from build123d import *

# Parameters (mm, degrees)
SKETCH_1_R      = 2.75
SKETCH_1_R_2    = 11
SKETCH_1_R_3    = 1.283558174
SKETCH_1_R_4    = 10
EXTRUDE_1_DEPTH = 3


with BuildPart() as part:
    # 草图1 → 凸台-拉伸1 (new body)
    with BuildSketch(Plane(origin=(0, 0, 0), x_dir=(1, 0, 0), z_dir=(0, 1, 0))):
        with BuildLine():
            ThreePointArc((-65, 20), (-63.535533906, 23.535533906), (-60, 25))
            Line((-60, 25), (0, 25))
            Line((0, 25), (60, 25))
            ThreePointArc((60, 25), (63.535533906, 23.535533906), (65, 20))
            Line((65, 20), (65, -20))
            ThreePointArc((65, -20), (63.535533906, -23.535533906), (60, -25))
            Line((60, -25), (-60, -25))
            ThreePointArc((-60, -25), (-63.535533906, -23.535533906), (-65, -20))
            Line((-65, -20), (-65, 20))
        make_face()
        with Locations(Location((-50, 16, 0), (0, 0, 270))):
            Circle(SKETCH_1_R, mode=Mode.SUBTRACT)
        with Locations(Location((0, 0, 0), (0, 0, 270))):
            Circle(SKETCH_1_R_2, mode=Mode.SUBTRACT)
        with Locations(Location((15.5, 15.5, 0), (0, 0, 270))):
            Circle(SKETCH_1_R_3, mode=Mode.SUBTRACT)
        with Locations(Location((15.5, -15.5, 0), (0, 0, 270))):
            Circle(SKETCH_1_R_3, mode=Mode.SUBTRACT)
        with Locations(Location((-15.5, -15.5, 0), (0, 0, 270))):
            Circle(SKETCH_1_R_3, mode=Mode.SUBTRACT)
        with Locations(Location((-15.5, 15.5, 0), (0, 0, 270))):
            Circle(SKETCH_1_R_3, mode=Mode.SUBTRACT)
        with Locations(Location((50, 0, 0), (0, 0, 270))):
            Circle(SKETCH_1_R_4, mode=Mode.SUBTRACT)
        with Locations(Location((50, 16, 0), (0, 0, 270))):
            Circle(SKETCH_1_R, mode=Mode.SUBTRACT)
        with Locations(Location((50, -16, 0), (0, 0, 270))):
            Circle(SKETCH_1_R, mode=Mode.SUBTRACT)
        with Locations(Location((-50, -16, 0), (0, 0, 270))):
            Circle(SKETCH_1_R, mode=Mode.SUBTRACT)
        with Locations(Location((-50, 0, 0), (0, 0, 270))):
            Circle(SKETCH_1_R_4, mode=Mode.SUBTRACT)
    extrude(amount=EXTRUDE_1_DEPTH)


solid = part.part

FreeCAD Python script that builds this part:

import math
import FreeCAD as App
import Part
import Sketcher

doc = App.newDocument("Part")
body = doc.addObject("PartDesign::Body", "Body")

sketch1 = doc.addObject("Sketcher::SketchObject", "Sketch")
body.addObject(sketch1)
sketch1.AttachmentSupport = (doc.XZ_Plane, [""])
sketch1.MapMode = "FlatFace"
sketch1.addGeometry([
    Part.ArcOfCircle(Part.Circle(App.Vector(-60, -20, 0), App.Vector(0, 0, 1), 5), math.radians(180), math.radians(270)),
    Part.LineSegment(App.Vector(-65, -20, 0), App.Vector(-65, 20, 0)),
    Part.ArcOfCircle(Part.Circle(App.Vector(-60, 20, 0), App.Vector(0, 0, 1), 5), math.radians(90), math.radians(180)),
    Part.LineSegment(App.Vector(-60, 25, 0), App.Vector(60, 25, 0)),
    Part.ArcOfCircle(Part.Circle(App.Vector(60, 20, 0), App.Vector(0, 0, 1), 5), math.radians(0), math.radians(90)),
    Part.LineSegment(App.Vector(65, 20, 0), App.Vector(65, -20, 0)),
    Part.ArcOfCircle(Part.Circle(App.Vector(60, -20, 0), App.Vector(0, 0, 1), 5), math.radians(-90), math.radians(0)),
    Part.LineSegment(App.Vector(60, -25, 0), App.Vector(-60, -25, 0)),
    Part.Circle(App.Vector(50, 16, 0), App.Vector(0, 0, 1), 2.8),
    Part.Circle(App.Vector(15.5, 15.5, 0), App.Vector(0, 0, 1), 1.3),
    Part.Circle(App.Vector(-15.5, 15.5, 0), App.Vector(0, 0, 1), 1.3),
    Part.Circle(App.Vector(-50, 16, 0), App.Vector(0, 0, 1), 2.8),
    Part.Circle(App.Vector(50, 0, 0), App.Vector(0, 0, 1), 10),
    Part.Circle(App.Vector(50, -16, 0), App.Vector(0, 0, 1), 2.8),
    Part.Circle(App.Vector(15.5, -15.5, 0), App.Vector(0, 0, 1), 1.3),
    Part.Circle(App.Vector(0, 0, 0), App.Vector(0, 0, 1), 11),
    Part.Circle(App.Vector(-50, 0, 0), App.Vector(0, 0, 1), 10),
    Part.Circle(App.Vector(-15.5, -15.5, 0), App.Vector(0, 0, 1), 1.3),
    Part.Circle(App.Vector(-50, -16, 0), App.Vector(0, 0, 1), 2.8),
], False)
sketch1.addConstraint([
    Sketcher.Constraint("Tangent", 0, 1, 1, 1),
    Sketcher.Constraint("Tangent", 1, 2, 2, 2),
    Sketcher.Constraint("Tangent", 2, 1, 3, 1),
    Sketcher.Constraint("Tangent", 3, 2, 4, 2),
    Sketcher.Constraint("Tangent", 4, 1, 5, 1),
    Sketcher.Constraint("Tangent", 5, 2, 6, 2),
    Sketcher.Constraint("Tangent", 6, 1, 7, 1),
    Sketcher.Constraint("Tangent", 7, 2, 0, 2),
    Sketcher.Constraint("Vertical", 1),
    Sketcher.Constraint("Horizontal", 3),
    Sketcher.Constraint("Vertical", 5),
    Sketcher.Constraint("Horizontal", 7),
    Sketcher.Constraint("Coincident", 15, 3, -1, 1),
    Sketcher.Constraint("Equal", 0, 2),
    Sketcher.Constraint("Equal", 2, 4),
    Sketcher.Constraint("Equal", 4, 6),
    Sketcher.Constraint("Equal", 9, 10),
    Sketcher.Constraint("Equal", 8, 11),
    Sketcher.Constraint("Equal", 11, 13),
    Sketcher.Constraint("Equal", 10, 14),
    Sketcher.Constraint("Equal", 12, 16),
    Sketcher.Constraint("Equal", 14, 17),
    Sketcher.Constraint("Equal", 13, 18),
    Sketcher.Constraint("Symmetric", 0, 3, 4, 3, -1, 1),
    Sketcher.Constraint("Symmetric", 11, 3, 13, 3, -1, 1),
    Sketcher.Constraint("Symmetric", 10, 3, 14, 3, -1, 1),
    Sketcher.Constraint("Symmetric", 12, 3, 16, 3, -1, 1),
    Sketcher.Constraint("Symmetric", 9, 3, 17, 3, -1, 1),
    Sketcher.Constraint("Symmetric", 8, 3, 18, 3, -1, 1),
    Sketcher.Constraint("Symmetric", 9, 3, 10, 3, -2),
    Sketcher.Constraint("Symmetric", 8, 3, 11, 3, -2),
    Sketcher.Constraint("PointOnObject", 12, 3, -1),
    Sketcher.Constraint("Vertical", 8, 3, 12, 3),
    Sketcher.Constraint("Diameter", 12, 20.0),
    Sketcher.Constraint("Diameter", 15, 22.0),
    Sketcher.Constraint("Radius", 0, 5.0),
    Sketcher.Constraint("Diameter", 8, 5.5),
    Sketcher.Constraint("DistanceX", 3, 1, 3, 2, 120.0),
    Sketcher.Constraint("DistanceY", 1, 1, 1, 2, 40.0),
    Sketcher.Constraint("DistanceX", -1, 1, 8, 3, 50.0),
    Sketcher.Constraint("DistanceY", -1, 1, 8, 3, 16.0),
    Sketcher.Constraint("DistanceX", 10, 3, 9, 3, 31.0),
    Sketcher.Constraint("DistanceY", 14, 3, 9, 3, 31.0),
    Sketcher.Constraint("Diameter", 9, 2.567116),
])
pad1 = doc.addObject("PartDesign::Pad", "Pad")
body.addObject(pad1)
pad1.Profile = sketch1
pad1.Length = 3
pad1.Reversed = True

doc.recompute()
